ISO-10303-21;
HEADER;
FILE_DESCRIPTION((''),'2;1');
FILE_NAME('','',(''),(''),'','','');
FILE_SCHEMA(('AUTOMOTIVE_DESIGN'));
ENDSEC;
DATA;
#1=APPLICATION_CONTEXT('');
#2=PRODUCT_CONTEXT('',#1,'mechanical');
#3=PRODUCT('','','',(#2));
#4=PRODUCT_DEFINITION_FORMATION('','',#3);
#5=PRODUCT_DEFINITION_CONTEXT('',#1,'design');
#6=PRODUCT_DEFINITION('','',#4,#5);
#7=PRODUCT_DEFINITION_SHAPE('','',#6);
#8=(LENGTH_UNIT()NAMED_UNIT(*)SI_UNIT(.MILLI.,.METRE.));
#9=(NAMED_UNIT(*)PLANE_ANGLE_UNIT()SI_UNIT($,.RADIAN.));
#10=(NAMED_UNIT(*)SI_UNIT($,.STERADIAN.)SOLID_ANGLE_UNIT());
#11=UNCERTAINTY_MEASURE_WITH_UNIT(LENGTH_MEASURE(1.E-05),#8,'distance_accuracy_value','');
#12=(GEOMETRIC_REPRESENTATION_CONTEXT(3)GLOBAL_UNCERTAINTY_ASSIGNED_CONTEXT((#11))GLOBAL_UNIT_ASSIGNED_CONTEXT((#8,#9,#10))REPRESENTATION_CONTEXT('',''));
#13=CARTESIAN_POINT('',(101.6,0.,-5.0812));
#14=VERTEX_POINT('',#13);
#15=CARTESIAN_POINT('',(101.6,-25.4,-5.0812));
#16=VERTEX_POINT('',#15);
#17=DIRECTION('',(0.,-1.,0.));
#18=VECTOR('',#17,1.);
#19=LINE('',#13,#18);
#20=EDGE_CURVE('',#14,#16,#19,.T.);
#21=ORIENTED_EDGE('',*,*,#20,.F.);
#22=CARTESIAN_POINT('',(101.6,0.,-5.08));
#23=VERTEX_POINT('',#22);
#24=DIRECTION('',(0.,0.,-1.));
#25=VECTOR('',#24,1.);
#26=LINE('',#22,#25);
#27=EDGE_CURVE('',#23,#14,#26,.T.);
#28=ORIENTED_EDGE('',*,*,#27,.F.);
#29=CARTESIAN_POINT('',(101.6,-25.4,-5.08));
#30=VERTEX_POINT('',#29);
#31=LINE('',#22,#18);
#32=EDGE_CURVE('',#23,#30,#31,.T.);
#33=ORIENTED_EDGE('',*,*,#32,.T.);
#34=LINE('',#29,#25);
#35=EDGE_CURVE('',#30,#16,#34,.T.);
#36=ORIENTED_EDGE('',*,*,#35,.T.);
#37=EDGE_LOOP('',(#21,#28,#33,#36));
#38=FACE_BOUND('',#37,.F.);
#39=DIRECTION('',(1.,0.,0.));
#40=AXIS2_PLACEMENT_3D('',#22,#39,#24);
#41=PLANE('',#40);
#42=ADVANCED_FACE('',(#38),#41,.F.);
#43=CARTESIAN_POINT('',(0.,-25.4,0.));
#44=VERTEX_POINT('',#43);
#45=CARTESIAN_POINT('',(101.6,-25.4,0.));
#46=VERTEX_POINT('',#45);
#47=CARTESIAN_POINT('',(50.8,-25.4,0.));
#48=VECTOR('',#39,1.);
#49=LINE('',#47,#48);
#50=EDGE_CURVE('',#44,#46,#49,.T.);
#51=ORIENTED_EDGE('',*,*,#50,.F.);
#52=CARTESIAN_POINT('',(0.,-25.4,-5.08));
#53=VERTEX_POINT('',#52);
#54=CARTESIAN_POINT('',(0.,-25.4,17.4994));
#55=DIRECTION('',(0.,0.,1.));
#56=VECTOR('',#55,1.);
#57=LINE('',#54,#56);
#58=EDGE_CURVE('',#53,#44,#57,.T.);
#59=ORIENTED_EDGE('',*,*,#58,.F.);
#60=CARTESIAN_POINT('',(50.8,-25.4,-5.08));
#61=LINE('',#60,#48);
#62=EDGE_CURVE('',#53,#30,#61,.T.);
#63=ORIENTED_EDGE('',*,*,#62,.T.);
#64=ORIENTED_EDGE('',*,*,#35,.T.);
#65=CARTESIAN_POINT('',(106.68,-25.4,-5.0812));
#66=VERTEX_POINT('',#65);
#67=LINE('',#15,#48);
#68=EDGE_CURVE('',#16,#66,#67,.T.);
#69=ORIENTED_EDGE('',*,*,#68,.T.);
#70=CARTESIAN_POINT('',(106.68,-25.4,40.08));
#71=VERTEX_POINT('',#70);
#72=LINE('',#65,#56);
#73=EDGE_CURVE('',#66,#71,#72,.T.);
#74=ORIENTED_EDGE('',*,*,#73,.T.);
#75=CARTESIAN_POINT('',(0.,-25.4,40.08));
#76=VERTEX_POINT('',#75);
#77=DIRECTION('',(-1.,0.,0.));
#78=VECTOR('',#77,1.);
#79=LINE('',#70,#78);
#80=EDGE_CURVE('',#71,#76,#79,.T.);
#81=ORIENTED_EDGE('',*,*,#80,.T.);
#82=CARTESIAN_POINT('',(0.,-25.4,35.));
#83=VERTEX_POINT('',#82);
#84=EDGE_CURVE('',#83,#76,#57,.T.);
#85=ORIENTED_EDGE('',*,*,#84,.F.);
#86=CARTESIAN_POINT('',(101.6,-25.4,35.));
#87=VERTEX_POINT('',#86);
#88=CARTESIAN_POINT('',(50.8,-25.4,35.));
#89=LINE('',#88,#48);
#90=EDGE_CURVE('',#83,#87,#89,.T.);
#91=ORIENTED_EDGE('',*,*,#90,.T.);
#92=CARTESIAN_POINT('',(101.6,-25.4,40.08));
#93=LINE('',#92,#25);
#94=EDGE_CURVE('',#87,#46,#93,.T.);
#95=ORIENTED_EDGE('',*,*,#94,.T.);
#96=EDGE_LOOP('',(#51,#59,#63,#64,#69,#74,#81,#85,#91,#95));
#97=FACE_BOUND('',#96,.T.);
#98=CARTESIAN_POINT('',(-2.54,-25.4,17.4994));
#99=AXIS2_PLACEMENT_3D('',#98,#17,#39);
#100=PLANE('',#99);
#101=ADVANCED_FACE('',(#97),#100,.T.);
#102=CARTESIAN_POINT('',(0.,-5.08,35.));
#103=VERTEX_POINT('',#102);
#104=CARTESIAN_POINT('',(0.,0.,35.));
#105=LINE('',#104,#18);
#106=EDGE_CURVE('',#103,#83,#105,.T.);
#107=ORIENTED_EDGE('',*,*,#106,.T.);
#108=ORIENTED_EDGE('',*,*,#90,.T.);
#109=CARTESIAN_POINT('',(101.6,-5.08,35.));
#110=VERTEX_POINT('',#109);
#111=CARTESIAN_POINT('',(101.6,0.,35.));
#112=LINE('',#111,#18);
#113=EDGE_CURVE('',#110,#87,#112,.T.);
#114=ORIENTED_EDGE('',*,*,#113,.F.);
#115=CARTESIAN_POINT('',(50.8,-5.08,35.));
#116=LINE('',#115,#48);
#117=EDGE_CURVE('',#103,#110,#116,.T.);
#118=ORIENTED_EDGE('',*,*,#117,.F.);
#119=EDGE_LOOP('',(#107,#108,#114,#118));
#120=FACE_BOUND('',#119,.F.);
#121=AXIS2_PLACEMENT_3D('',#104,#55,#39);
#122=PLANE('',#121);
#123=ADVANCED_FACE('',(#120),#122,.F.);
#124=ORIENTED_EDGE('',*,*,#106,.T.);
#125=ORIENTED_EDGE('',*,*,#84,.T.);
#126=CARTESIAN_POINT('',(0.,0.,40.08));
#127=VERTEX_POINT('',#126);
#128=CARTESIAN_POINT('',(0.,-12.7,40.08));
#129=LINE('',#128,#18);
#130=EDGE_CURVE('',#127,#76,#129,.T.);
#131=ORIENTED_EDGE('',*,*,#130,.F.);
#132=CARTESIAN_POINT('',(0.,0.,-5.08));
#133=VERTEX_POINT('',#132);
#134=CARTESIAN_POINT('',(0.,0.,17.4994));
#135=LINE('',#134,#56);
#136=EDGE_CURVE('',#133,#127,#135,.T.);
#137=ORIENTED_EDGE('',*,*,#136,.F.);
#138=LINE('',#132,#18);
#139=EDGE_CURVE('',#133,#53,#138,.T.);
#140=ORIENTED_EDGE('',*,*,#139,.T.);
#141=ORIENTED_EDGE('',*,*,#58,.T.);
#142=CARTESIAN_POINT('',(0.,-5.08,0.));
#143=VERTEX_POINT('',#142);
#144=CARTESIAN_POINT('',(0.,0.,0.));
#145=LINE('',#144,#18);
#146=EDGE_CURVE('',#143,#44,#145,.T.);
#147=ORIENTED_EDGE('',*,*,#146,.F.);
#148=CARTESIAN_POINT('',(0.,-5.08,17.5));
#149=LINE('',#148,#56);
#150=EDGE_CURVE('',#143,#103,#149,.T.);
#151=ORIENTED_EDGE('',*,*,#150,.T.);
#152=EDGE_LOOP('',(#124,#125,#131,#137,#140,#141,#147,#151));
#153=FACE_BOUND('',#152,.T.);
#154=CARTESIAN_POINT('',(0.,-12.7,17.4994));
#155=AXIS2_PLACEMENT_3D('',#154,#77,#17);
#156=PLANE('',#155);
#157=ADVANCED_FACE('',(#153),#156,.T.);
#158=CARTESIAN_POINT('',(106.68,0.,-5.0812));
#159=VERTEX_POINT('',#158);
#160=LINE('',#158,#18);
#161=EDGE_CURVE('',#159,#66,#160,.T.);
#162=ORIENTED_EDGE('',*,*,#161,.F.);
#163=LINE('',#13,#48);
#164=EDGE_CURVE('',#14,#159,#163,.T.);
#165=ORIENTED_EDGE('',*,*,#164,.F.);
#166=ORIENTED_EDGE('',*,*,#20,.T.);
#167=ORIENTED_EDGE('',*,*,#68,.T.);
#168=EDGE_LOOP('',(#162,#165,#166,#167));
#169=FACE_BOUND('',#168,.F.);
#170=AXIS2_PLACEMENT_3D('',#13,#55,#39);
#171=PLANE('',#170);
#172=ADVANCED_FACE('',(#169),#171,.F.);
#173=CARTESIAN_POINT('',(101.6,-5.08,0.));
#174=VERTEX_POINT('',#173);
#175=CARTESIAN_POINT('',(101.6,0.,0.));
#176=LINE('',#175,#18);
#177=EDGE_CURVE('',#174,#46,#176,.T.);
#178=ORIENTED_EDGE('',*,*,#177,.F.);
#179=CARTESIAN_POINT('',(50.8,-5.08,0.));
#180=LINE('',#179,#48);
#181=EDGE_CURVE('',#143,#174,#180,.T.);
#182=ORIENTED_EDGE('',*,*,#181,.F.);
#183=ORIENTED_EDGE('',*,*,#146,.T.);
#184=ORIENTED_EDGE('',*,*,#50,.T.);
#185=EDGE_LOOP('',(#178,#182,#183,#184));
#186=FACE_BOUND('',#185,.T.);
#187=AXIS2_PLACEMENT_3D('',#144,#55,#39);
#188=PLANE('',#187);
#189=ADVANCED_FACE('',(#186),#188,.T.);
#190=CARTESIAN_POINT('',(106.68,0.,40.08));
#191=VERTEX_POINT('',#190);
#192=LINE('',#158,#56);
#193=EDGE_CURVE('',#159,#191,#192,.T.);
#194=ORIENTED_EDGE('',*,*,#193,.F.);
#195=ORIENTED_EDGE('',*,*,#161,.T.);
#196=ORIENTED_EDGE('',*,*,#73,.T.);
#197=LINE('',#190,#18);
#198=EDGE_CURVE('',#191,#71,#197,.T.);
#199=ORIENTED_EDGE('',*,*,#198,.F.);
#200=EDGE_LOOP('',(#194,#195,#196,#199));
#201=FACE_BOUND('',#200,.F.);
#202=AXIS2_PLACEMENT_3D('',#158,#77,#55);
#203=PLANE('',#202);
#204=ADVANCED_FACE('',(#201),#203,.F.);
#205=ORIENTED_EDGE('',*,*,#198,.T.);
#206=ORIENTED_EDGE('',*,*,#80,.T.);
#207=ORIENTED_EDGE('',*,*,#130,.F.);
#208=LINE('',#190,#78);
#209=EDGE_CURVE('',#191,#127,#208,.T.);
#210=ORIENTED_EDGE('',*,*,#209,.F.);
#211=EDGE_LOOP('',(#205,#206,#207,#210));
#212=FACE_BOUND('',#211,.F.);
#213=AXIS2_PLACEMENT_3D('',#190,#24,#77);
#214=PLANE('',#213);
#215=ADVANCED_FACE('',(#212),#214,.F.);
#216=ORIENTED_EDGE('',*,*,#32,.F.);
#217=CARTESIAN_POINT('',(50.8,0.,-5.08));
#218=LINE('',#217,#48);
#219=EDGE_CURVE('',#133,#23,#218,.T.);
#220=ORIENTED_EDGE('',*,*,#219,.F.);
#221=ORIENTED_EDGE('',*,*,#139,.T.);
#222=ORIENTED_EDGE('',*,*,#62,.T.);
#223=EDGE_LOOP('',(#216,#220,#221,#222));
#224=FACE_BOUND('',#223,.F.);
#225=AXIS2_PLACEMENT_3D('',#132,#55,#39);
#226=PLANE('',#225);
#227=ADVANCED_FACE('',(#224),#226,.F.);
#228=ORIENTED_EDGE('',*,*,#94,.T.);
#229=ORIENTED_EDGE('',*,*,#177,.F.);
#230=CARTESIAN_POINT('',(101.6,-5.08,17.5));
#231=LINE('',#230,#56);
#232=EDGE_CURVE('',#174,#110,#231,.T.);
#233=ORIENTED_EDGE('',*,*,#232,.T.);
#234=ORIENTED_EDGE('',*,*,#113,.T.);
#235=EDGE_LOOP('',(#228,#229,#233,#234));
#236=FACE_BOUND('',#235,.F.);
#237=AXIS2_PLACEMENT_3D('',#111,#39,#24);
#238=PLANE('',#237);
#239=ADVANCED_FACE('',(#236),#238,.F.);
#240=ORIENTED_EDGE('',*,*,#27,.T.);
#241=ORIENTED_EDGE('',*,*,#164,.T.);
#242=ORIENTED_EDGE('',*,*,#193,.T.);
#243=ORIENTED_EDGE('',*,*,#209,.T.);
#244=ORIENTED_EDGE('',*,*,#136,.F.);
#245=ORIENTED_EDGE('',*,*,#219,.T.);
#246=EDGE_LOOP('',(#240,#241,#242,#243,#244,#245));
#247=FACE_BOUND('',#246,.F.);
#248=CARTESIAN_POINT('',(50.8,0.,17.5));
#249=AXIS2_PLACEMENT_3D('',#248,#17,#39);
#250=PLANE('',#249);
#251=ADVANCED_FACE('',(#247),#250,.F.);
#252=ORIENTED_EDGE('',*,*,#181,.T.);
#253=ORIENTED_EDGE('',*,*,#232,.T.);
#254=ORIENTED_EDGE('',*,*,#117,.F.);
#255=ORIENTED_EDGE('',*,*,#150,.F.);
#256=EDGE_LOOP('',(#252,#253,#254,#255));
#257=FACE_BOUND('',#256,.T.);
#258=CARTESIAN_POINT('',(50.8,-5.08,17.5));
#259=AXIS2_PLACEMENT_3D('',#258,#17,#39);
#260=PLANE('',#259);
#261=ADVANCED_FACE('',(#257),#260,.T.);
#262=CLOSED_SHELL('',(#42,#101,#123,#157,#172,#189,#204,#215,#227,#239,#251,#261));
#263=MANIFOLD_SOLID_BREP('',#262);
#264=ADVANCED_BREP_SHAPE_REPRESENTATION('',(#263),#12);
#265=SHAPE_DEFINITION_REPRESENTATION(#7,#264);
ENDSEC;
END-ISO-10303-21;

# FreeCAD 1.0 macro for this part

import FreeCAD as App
import Part
import Sketcher

V = App.Vector
Q = App.Units.Quantity

doc = App.newDocument("Part")
body = doc.addObject("PartDesign::Body", "Body")

# Sketch on XZ plane
sketch1 = doc.addObject("Sketcher::SketchObject", "Sketch")
body.addObject(sketch1)
sketch1.AttachmentSupport = (doc.XZ_Plane, [""])
sketch1.MapMode = "FlatFace"
sketch1.addGeometry([
    Part.LineSegment(V(-5.08, 40.08, 0), V(-5.08, -5.0812, 0)),  # 0
    Part.LineSegment(V(-5.08, -5.0812, 0), V(0, -5.0812, 0)),  # 1
    Part.LineSegment(V(0, -5.0812, 0), V(0, -5.08, 0)),  # 2
    Part.LineSegment(V(0, -5.08, 0), V(101.6, -5.08, 0)),  # 3
    Part.LineSegment(V(101.6, -5.08, 0), V(101.6, -5.0812, 0)),  # 4
    Part.LineSegment(V(101.6, -5.0812, 0), V(106.68, -5.0812, 0)),  # 5
    Part.LineSegment(V(106.68, -5.0812, 0), V(106.68, 40.08, 0)),  # 6
    Part.LineSegment(V(106.68, 40.08, 0), V(-5.08, 40.08, 0)),  # 7
    Part.LineSegment(V(101.6, 35, 0), V(101.6, 0, 0)),  # 8
    Part.LineSegment(V(101.6, 0, 0), V(0, 0, 0)),  # 9
    Part.LineSegment(V(0, 0, 0), V(0, 35, 0)),  # 10
    Part.LineSegment(V(0, 35, 0), V(101.6, 35, 0)),  # 11
], False)
sketch1.addConstraint([
    Sketcher.Constraint("Coincident", 0, 2, 1, 1),
    Sketcher.Constraint("Coincident", 1, 2, 2, 1),
    Sketcher.Constraint("Coincident", 2, 2, 3, 1),
    Sketcher.Constraint("Coincident", 3, 2, 4, 1),
    Sketcher.Constraint("Coincident", 4, 2, 5, 1),
    Sketcher.Constraint("Coincident", 5, 2, 6, 1),
    Sketcher.Constraint("Coincident", 6, 2, 7, 1),
    Sketcher.Constraint("Coincident", 7, 2, 0, 1),
    Sketcher.Constraint("Coincident", 8, 2, 9, 1),
    Sketcher.Constraint("Coincident", 9, 2, 10, 1),
    Sketcher.Constraint("Coincident", 10, 2, 11, 1),
    Sketcher.Constraint("Coincident", 11, 2, 8, 1),
    Sketcher.Constraint("Vertical", 0),
    Sketcher.Constraint("Horizontal", 1),
    Sketcher.Constraint("Vertical", 2),
    Sketcher.Constraint("Horizontal", 3),
    Sketcher.Constraint("Vertical", 4),
    Sketcher.Constraint("Horizontal", 5),
    Sketcher.Constraint("Vertical", 6),
    Sketcher.Constraint("Horizontal", 7),
    Sketcher.Constraint("Vertical", 8),
    Sketcher.Constraint("Horizontal", 9),
    Sketcher.Constraint("Vertical", 10),
    Sketcher.Constraint("Horizontal", 11),
    Sketcher.Constraint("Coincident", 9, 2, -1, 1),
    Sketcher.Constraint("PointOnObject", 1, 2, -2),
    Sketcher.Constraint("Horizontal", 1, 2, 4, 2),
    Sketcher.Constraint("Vertical", 4, 2, 8, 2),
    Sketcher.Constraint("Equal", 1, 5),
    Sketcher.Constraint("DistanceX", 3, 1, 3, 2, Q("4 in")),
    Sketcher.Constraint("DistanceX", 1, 1, 1, 2, Q("0.2 in")),
    Sketcher.Constraint("DistanceY", 2, 2, -1, 1, Q("0.2 in")),
    Sketcher.Constraint("DistanceY", 10, 2, 7, 2, Q("0.2 in")),
    Sketcher.Constraint("DistanceY", 0, 2, 0, 1, Q("1.778 in")),
    Sketcher.Constraint("DistanceY", 2, 1, 2, 2, Q("0.0012 mm")),
])
pad1 = doc.addObject("PartDesign::Pad", "Pad")
body.addObject(pad1)
pad1.Profile = sketch1
pad1.Length = Q("1 in")

# Sketch on XZ plane
sketch2 = doc.addObject("Sketcher::SketchObject", "Sketch001")
body.addObject(sketch2)
sketch2.AttachmentSupport = (doc.XZ_Plane, [""])
sketch2.MapMode = "FlatFace"
sketch2.addGeometry([
    Part.LineSegment(V(0, 35, 0), V(0, 0, 0)),
    Part.LineSegment(V(0, 0, 0), V(102, 0, 0)),
    Part.LineSegment(V(102, 0, 0), V(102, 35, 0)),
    Part.LineSegment(V(102, 35, 0), V(0, 35, 0)),
], False)
sketch2.addConstraint([
    Sketcher.Constraint("Coincident", 0, 2, 1, 1),
    Sketcher.Constraint("Coincident", 1, 2, 2, 1),
    Sketcher.Constraint("Coincident", 2, 2, 3, 1),
    Sketcher.Constraint("Coincident", 3, 2, 0, 1),
    Sketcher.Constraint("Vertical", 0),
    Sketcher.Constraint("Horizontal", 1),
    Sketcher.Constraint("Vertical", 2),
    Sketcher.Constraint("Horizontal", 3),
    Sketcher.Constraint("Coincident", 0, 2, -1, 1),
    Sketcher.Constraint("DistanceX", 1, 1, 1, 2, Q("4 in")),
    Sketcher.Constraint("DistanceY", 0, 2, 0, 1, Q("35 mm")),
])
pad2 = doc.addObject("PartDesign::Pad", "Pad001")
body.addObject(pad2)
pad2.Profile = sketch2
pad2.Length = Q("0.2 in")

# Sketch on YZ plane
sketch3 = doc.addObject("Sketcher::SketchObject", "Sketch002")
body.addObject(sketch3)
sketch3.AttachmentSupport = (doc.YZ_Plane, [""])
sketch3.MapMode = "FlatFace"
sketch3.AttachmentOffset = App.Placement(V(0, 0, -0.2 * 25.4), App.Rotation())
sketch3.addGeometry([
    Part.LineSegment(V(0, 40, 0), V(0, -5, 0)),
    Part.LineSegment(V(0, -5, 0), V(-25, -5, 0)),
    Part.LineSegment(V(-25, -5, 0), V(-25, 40, 0)),
    Part.LineSegment(V(-25, 40, 0), V(0, 40, 0)),
], False)
sketch3.addConstraint([
    Sketcher.Constraint("Coincident", 0, 2, 1, 1),
    Sketcher.Constraint("Coincident", 1, 2, 2, 1),
    Sketcher.Constraint("Coincident", 2, 2, 3, 1),
    Sketcher.Constraint("Coincident", 3, 2, 0, 1),
    Sketcher.Constraint("Vertical", 0),
    Sketcher.Constraint("Horizontal", 1),
    Sketcher.Constraint("Vertical", 2),
    Sketcher.Constraint("Horizontal", 3),
    Sketcher.Constraint("PointOnObject", 0, 2, -2),
    Sketcher.Constraint("DistanceX", 1, 2, 1, 1, Q("1 in")),
    Sketcher.Constraint("DistanceY", 0, 2, 0, 1, Q("1.778 in")),
    Sketcher.Constraint("DistanceY", 0, 2, -1, 1, Q("5.0812 mm")),
])
pocket1 = doc.addObject("PartDesign::Pocket", "Pocket")
body.addObject(pocket1)
pocket1.Profile = sketch3
pocket1.Length = Q("0.2 in")
pocket1.Reversed = True

doc.recompute()
